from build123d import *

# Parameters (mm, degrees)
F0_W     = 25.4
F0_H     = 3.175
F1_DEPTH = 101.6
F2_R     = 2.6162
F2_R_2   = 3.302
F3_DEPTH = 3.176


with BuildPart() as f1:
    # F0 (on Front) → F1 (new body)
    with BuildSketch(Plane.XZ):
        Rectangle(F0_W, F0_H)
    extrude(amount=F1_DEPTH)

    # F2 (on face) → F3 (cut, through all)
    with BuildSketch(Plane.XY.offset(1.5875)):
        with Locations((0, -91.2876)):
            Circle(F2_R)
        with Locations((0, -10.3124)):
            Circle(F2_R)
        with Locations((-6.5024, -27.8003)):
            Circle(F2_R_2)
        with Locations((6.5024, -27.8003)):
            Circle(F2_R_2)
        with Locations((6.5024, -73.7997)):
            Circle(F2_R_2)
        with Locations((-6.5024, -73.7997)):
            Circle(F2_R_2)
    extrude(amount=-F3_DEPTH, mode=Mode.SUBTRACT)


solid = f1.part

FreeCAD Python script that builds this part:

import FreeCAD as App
import Part
import Sketcher

V = App.Vector
Q = App.Units.Quantity

doc = App.newDocument("Part")
body = doc.addObject("PartDesign::Body", "Body")

# Sketch on XZ plane
sketch1 = doc.addObject("Sketcher::SketchObject", "Sketch")
body.addObject(sketch1)
sketch1.AttachmentSupport = (doc.XZ_Plane, [""])
sketch1.MapMode = "FlatFace"
sketch1.addGeometry([
    Part.LineSegment(V(-12.7, 1.6, 0), V(-12.7, -1.6, 0)),
    Part.LineSegment(V(-12.7, -1.6, 0), V(12.7, -1.6, 0)),
    Part.LineSegment(V(12.7, -1.6, 0), V(12.7, 1.6, 0)),
    Part.LineSegment(V(12.7, 1.6, 0), V(-12.7, 1.6, 0)),
], False)
sketch1.addConstraint([
    Sketcher.Constraint("Coincident", 0, 2, 1, 1),
    Sketcher.Constraint("Coincident", 1, 2, 2, 1),
    Sketcher.Constraint("Coincident", 2, 2, 3, 1),
    Sketcher.Constraint("Coincident", 3, 2, 0, 1),
    Sketcher.Constraint("Vertical", 0),
    Sketcher.Constraint("Horizontal", 1),
    Sketcher.Constraint("Vertical", 2),
    Sketcher.Constraint("Horizontal", 3),
    Sketcher.Constraint("Symmetric", 0, 2, 2, 2, -1, 1),
    Sketcher.Constraint("DistanceX", 1, 1, 1, 2, Q("1 in")),
    Sketcher.Constraint("DistanceY", 0, 2, 0, 1, Q("0.125 in")),
])
pad1 = doc.addObject("PartDesign::Pad", "Pad")
body.addObject(pad1)
pad1.Profile = sketch1
pad1.Length = Q("4 in")

# Sketch on XY plane
sketch2 = doc.addObject("Sketcher::SketchObject", "Sketch001")
body.addObject(sketch2)
sketch2.AttachmentSupport = (doc.XY_Plane, [""])
sketch2.MapMode = "FlatFace"
sketch2.AttachmentOffset = App.Placement(V(0, 0, 0.0625 * 25.4), App.Rotation())
sketch2.addGeometry([
    Part.Circle(V(0, -91.3, 0), V(0, 0, 1), 2.6),  # 0
    Part.Circle(V(0, -10.3, 0), V(0, 0, 1), 2.6),  # 1
    Part.Circle(V(-6.5, -27.8, 0), V(0, 0, 1), 3.3),  # 2
    Part.Circle(V(6.5, -27.8, 0), V(0, 0, 1), 3.3),  # 3
    Part.Circle(V(6.5, -73.8, 0), V(0, 0, 1), 3.3),  # 4
    Part.Circle(V(-6.5, -73.8, 0), V(0, 0, 1), 3.3),  # 5
], False)
sketch2.addConstraint([
    Sketcher.Constraint("Equal", 0, 1),
    Sketcher.Constraint("Equal", 2, 3),
    Sketcher.Constraint("Equal", 3, 4),
    Sketcher.Constraint("Equal", 4, 5),
    Sketcher.Constraint("Symmetric", 2, 3, 3, 3, -2),
    Sketcher.Constraint("Symmetric", 4, 3, 5, 3, -2),
    Sketcher.Constraint("PointOnObject", 0, 3, -2),
    Sketcher.Constraint("PointOnObject", 1, 3, -2),
    Sketcher.Constraint("Vertical", 3, 3, 4, 3),
    Sketcher.Constraint("Diameter", 2, Q("0.26 in")),
    Sketcher.Constraint("Diameter", 0, Q("0.206 in")),
    Sketcher.Constraint("DistanceY", 0, 3, -1, 1, Q("3.594 in")),
    Sketcher.Constraint("DistanceY", 1, 3, -1, 1, Q("0.406 in")),
    Sketcher.Constraint("DistanceX", 2, 3, -1, 1, Q("0.256 in")),
    Sketcher.Constraint("DistanceY", 4, 3, 3, 3, Q("1.811 in")),
    Sketcher.Constraint("DistanceY", 2, 3, -1, 1, Q("1.0945 in")),
])
pocket1 = doc.addObject("PartDesign::Pocket", "Pocket")
body.addObject(pocket1)
pocket1.Profile = sketch2
pocket1.Type = "ThroughAll"

doc.recompute()
